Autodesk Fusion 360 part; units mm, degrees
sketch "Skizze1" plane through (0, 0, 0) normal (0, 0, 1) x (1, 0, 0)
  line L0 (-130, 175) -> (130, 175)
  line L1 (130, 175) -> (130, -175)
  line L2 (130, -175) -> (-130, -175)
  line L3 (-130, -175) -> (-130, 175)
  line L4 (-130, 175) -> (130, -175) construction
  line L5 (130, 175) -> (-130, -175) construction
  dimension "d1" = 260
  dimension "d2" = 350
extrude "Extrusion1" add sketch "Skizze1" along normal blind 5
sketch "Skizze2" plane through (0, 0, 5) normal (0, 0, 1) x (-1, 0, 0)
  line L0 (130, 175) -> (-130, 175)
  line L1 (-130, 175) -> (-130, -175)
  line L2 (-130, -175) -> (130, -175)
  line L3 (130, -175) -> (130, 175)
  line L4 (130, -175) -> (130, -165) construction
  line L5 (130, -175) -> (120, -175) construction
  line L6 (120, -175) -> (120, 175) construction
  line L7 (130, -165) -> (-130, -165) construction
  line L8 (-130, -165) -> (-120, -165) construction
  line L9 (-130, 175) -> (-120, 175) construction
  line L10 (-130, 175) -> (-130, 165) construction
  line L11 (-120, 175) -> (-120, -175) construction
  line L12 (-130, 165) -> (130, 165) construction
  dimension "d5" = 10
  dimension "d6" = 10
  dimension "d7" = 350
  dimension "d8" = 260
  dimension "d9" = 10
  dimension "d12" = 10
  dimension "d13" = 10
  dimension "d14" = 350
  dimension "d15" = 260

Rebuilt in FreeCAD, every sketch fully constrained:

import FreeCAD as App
import Part
import Sketcher
from FreeCAD import Vector


def add_polygon(sketch, points):
    """Adds a closed chain of lines whose ends are joined by coincident constraints."""
    first, n = sketch.GeometryCount, len(points)
    for a, b in zip(points, points[1:] + points[:1]):
        sketch.addGeometry(Part.LineSegment(App.Vector(*a, 0), App.Vector(*b, 0)), False)
    for i in range(n):
        sketch.addConstraint(Sketcher.Constraint("Coincident", first + i, 2, first + (i + 1) % n, 1))

doc = App.newDocument("Part")
body = doc.addObject("PartDesign::Body", "Body")

# Sketch on XY plane
sketch1 = body.newObject("Sketcher::SketchObject", "Sketch")
sketch1.AttachmentSupport = (doc.getObject("XY_Plane"), [""])
sketch1.MapMode = "FlatFace"
add_polygon(sketch1, [(130, 175), (-130, 175), (-130, -175), (130, -175)])  # lines 0-3
sketch1.addConstraint([
    Sketcher.Constraint("Horizontal", 0),
    Sketcher.Constraint("Vertical", 1),
    Sketcher.Constraint("Horizontal", 2),
    Sketcher.Constraint("Vertical", 3),
    Sketcher.Constraint("Symmetric", 0, 2, 2, 2, -1, 1),
    Sketcher.Constraint("DistanceX", 0, 2, 0, 1, 260.0),
    Sketcher.Constraint("DistanceY", 1, 2, 1, 1, 350.0),
])
pad1 = body.newObject("PartDesign::Pad", "Pad")
pad1.Profile = sketch1
pad1.Length = 5

doc.recompute()
